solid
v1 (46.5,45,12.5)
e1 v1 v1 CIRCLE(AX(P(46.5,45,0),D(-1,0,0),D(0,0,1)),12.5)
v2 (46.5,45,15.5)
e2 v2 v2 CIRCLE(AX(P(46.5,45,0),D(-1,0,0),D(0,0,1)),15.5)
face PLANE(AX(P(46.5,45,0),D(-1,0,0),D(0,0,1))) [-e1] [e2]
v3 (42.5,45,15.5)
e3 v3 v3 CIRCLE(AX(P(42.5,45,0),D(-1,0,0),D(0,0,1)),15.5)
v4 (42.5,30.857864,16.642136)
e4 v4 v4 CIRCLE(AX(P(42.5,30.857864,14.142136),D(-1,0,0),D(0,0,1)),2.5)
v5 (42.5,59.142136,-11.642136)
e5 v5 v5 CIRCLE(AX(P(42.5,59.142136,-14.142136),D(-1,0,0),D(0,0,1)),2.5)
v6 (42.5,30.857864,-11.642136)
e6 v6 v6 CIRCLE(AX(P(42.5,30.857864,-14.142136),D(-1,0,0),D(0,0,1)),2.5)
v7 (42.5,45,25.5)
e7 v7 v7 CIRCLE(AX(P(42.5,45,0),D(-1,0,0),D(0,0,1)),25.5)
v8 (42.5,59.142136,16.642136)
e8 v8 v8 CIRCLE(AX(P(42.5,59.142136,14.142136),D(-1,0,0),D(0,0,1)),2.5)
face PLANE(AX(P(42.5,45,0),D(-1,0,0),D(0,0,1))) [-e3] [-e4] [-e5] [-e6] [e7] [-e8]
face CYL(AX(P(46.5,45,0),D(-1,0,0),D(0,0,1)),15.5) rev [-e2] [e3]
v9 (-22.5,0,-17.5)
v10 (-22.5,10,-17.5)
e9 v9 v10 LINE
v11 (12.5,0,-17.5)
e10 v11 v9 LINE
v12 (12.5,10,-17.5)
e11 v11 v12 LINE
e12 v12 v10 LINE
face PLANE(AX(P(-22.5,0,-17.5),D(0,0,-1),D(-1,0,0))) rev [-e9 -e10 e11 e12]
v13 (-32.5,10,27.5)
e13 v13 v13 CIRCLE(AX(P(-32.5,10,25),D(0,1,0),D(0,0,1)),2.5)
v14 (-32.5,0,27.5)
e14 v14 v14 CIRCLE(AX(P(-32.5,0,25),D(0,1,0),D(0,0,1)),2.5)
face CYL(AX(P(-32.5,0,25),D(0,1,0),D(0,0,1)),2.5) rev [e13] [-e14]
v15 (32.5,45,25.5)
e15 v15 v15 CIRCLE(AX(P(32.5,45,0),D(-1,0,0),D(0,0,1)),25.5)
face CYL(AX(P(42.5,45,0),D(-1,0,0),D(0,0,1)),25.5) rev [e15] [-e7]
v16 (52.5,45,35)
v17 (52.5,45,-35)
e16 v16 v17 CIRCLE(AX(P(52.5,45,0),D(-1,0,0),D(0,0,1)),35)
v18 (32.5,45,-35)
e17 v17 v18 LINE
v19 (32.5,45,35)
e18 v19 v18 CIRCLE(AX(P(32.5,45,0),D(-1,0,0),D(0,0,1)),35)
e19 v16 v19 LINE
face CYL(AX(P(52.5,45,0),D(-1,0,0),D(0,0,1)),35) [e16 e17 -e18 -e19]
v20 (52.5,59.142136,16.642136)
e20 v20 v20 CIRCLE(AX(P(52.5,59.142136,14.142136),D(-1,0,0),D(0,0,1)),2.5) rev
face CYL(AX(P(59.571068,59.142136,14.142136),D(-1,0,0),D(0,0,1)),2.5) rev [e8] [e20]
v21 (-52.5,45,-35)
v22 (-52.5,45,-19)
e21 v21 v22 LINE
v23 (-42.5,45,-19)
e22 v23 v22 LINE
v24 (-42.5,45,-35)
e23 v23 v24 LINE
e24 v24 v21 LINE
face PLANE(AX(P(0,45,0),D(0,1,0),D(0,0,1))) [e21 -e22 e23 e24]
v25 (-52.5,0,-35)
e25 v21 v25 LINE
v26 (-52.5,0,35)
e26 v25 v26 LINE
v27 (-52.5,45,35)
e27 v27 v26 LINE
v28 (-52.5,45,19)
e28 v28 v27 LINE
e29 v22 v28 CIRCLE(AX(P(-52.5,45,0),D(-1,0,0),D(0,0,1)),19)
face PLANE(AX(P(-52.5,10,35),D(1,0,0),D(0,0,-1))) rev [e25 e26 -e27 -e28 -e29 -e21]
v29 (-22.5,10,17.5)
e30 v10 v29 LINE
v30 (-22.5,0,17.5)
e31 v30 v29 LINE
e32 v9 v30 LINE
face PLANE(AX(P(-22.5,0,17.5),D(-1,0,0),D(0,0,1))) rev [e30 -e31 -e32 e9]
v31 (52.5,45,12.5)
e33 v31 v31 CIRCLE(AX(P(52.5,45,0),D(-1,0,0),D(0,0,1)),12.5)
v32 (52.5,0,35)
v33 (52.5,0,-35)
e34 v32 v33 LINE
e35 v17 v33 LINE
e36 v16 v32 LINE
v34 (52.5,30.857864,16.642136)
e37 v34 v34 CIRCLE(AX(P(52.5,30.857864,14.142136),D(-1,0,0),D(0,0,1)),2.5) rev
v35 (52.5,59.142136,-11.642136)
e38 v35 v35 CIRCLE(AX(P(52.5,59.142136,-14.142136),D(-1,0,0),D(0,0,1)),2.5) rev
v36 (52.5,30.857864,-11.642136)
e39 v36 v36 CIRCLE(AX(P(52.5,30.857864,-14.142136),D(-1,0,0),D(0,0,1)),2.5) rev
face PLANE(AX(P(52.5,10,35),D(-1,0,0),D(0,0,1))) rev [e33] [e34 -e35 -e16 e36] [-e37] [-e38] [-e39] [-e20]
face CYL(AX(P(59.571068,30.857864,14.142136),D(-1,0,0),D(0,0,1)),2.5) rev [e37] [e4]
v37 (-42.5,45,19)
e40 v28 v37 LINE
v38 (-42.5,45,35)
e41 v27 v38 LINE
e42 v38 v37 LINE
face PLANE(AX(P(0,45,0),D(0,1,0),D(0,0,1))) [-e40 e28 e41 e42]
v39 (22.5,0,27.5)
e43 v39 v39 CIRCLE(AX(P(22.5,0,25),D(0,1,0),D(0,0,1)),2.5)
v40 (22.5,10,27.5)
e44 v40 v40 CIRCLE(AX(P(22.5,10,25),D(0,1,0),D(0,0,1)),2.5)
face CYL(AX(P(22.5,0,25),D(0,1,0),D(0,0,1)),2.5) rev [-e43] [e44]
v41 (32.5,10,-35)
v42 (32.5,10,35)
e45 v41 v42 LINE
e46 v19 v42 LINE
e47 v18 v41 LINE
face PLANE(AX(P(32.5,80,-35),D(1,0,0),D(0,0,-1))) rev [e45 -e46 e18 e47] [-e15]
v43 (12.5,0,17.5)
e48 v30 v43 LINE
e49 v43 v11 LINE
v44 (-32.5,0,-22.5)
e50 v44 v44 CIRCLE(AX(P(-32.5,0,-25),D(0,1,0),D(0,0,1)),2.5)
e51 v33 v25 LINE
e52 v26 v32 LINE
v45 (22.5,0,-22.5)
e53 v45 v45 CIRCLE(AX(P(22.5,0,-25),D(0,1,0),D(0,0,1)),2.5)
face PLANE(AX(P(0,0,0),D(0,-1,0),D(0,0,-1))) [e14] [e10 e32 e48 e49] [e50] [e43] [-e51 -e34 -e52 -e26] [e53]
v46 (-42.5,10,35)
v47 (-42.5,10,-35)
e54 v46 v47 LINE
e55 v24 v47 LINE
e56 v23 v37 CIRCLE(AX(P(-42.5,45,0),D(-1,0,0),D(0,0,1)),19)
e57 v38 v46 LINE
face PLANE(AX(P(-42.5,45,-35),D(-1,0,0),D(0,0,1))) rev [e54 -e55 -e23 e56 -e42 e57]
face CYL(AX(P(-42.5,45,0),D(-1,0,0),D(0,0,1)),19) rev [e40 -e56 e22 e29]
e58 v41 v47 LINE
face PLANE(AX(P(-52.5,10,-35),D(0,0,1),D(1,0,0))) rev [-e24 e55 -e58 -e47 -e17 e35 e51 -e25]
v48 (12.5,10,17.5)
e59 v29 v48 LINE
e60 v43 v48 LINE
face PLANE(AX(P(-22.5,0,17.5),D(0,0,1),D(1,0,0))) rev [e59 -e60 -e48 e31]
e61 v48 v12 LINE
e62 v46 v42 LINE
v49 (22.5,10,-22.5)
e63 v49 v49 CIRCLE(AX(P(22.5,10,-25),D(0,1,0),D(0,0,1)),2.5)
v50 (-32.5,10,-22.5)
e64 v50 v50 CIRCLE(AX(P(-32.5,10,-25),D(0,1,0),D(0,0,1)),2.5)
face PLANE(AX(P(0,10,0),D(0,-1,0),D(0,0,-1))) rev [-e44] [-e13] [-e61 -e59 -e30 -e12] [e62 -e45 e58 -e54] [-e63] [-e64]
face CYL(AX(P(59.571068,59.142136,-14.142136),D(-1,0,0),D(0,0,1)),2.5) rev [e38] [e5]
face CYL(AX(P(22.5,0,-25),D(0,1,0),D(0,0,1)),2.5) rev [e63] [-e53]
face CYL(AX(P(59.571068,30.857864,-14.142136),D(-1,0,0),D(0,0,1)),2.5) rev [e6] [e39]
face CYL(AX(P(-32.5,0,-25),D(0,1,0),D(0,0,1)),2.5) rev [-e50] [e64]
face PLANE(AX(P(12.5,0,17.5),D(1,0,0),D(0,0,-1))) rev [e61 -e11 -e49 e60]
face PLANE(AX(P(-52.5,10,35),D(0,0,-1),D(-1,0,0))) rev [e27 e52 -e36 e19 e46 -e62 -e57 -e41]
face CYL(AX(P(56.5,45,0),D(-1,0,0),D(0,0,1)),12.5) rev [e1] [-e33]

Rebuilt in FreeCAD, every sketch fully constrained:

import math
import FreeCAD as App
import Part
import Sketcher
from FreeCAD import Vector


def add_polygon(sketch, points):
    """Adds a closed chain of lines whose ends are joined by coincident constraints."""
    first, n = sketch.GeometryCount, len(points)
    for a, b in zip(points, points[1:] + points[:1]):
        sketch.addGeometry(Part.LineSegment(App.Vector(*a, 0), App.Vector(*b, 0)), False)
    for i in range(n):
        sketch.addConstraint(Sketcher.Constraint("Coincident", first + i, 2, first + (i + 1) % n, 1))

doc = App.newDocument("Part")
body = doc.addObject("PartDesign::Body", "Body")

# Sketch on XZ plane
sketch1 = body.newObject("Sketcher::SketchObject", "Sketch")
sketch1.AttachmentSupport = (doc.getObject("XZ_Plane"), [""])
sketch1.MapMode = "FlatFace"
add_polygon(sketch1, [(-52, -35), (-52, 35), (52, 35), (52, -35)])  # lines 0-3
sketch1.addConstraint([
    Sketcher.Constraint("Vertical", 0),
    Sketcher.Constraint("Horizontal", 1),
    Sketcher.Constraint("Vertical", 2),
    Sketcher.Constraint("Horizontal", 3),
    Sketcher.Constraint("Symmetric", 0, 2, 2, 2, -1, 1),
    Sketcher.Constraint("DistanceX", 1, 1, 1, 2, 105.0),
    Sketcher.Constraint("DistanceY", 0, 1, 0, 2, 70.0),
])
pad1 = body.newObject("PartDesign::Pad", "Pad")
pad1.Profile = sketch1
pad1.Length = 10
pad1.Reversed = True

# Sketch on XZ plane
sketch2 = body.newObject("Sketcher::SketchObject", "Sketch001")
sketch2.AttachmentSupport = (doc.getObject("XZ_Plane"), [""])
sketch2.MapMode = "FlatFace"
sketch2.AttachmentOffset = App.Placement(Vector(0, 0, -10), App.Rotation())
add_polygon(sketch2, [(32, -35), (32, 35), (52, 35), (52, -35)])  # lines 0-3
sketch2.addConstraint([
    Sketcher.Constraint("Vertical", 0),
    Sketcher.Constraint("Horizontal", 1),
    Sketcher.Constraint("Vertical", 2),
    Sketcher.Constraint("Horizontal", 3),
    Sketcher.Constraint("DistanceX", 1, 1, 1, 2, 20.0),
    Sketcher.Constraint("DistanceY", 0, 1, 0, 2, 70.0),
    Sketcher.Constraint("DistanceY", -1, 1, 0, 2, 35.0),
    Sketcher.Constraint("DistanceX", -1, 1, 0, 2, 32.5),
])
pad2 = body.newObject("PartDesign::Pad", "Pad001")
pad2.Profile = sketch2
pad2.Length = 70
pad2.Reversed = True

# Sketch on YZ plane
sketch3 = body.newObject("Sketcher::SketchObject", "Sketch002")
sketch3.AttachmentSupport = (doc.getObject("YZ_Plane"), [""])
sketch3.MapMode = "FlatFace"
sketch3.AttachmentOffset = App.Placement(Vector(0, 0, 32.5), App.Rotation())
sketch3.addGeometry([
    Part.LineSegment(Vector(80, 0, 0), Vector(80, -35, 0)),  # 0
    Part.LineSegment(Vector(80, -35, 0), Vector(45, -35, 0)),  # 1
    Part.ArcOfCircle(Part.Circle(Vector(45, 0, 0), Vector(0, 0, 1), 35), math.radians(-90), math.radians(0)),  # 2
    Part.LineSegment(Vector(80, 35, 0), Vector(80, 0, 0)),  # 3
    Part.ArcOfCircle(Part.Circle(Vector(45, 0, 0), Vector(0, 0, 1), 35), math.radians(0), math.radians(90)),  # 4
    Part.LineSegment(Vector(45, 35, 0), Vector(80, 35, 0)),  # 5
], False)
sketch3.addConstraint([
    Sketcher.Constraint("Coincident", 0, 2, 1, 1),
    Sketcher.Constraint("Tangent", 1, 2, 2, 1),
    Sketcher.Constraint("Tangent", 2, 2, 0, 1),
    Sketcher.Constraint("Tangent", 3, 2, 4, 1),
    Sketcher.Constraint("Tangent", 4, 2, 5, 1),
    Sketcher.Constraint("Coincident", 5, 2, 3, 1),
    Sketcher.Constraint("Vertical", 0),
    Sketcher.Constraint("Horizontal", 1),
    Sketcher.Constraint("Vertical", 3),
    Sketcher.Constraint("Horizontal", 5),
    Sketcher.Constraint("Coincident", 4, 3, 2, 3),
    Sketcher.Constraint("Equal", 2, 4),
    Sketcher.Constraint("PointOnObject", 2, 3, -1),
    Sketcher.Constraint("Radius", 2, 35.0),
    Sketcher.Constraint("DistanceX", -1, 1, 2, 3, 45.0),
])
pocket1 = body.newObject("PartDesign::Pocket", "Pocket")
pocket1.Profile = sketch3
pocket1.Length = 20
pocket1.Reversed = True

# Sketch on YZ plane
sketch4 = body.newObject("Sketcher::SketchObject", "Sketch003")
sketch4.AttachmentSupport = (doc.getObject("YZ_Plane"), [""])
sketch4.MapMode = "FlatFace"
sketch4.AttachmentOffset = App.Placement(Vector(0, 0, 32.5), App.Rotation())
sketch4.addGeometry(Part.Circle(Vector(45, 0, 0), Vector(0, 0, 1), 26), False)
sketch4.addConstraint([
    Sketcher.Constraint("PointOnObject", 0, 3, -1),
    Sketcher.Constraint("Diameter", 0, 51.0),
    Sketcher.Constraint("DistanceX", -1, 1, 0, 3, 45.0),
])
pocket2 = body.newObject("PartDesign::Pocket", "Pocket001")
pocket2.Profile = sketch4
pocket2.Length = 10
pocket2.Reversed = True

# Sketch on YZ plane
sketch5 = body.newObject("Sketcher::SketchObject", "Sketch004")
sketch5.AttachmentSupport = (doc.getObject("YZ_Plane"), [""])
sketch5.MapMode = "FlatFace"
sketch5.AttachmentOffset = App.Placement(Vector(0, 0, 42.5), App.Rotation())
sketch5.addGeometry(Part.Circle(Vector(45, 0, 0), Vector(0, 0, 1), 16), False)
sketch5.addConstraint([
    Sketcher.Constraint("PointOnObject", 0, 3, -1),
    Sketcher.Constraint("Diameter", 0, 31.0),
    Sketcher.Constraint("DistanceX", -1, 1, 0, 3, 45.0),
])
pocket3 = body.newObject("PartDesign::Pocket", "Pocket002")
pocket3.Profile = sketch5
pocket3.Length = 4
pocket3.Reversed = True

# Sketch on YZ plane
sketch6 = body.newObject("Sketcher::SketchObject", "Sketch005")
sketch6.AttachmentSupport = (doc.getObject("YZ_Plane"), [""])
sketch6.MapMode = "FlatFace"
sketch6.AttachmentOffset = App.Placement(Vector(0, 0, 42.5), App.Rotation())
sketch6.addGeometry([
    Part.Circle(Vector(59.1, 14.1, 0), Vector(0, 0, 1), 2.5),
    Part.Circle(Vector(30.9, 14.1, 0), Vector(0, 0, 1), 2.5),
    Part.Circle(Vector(30.9, -14.1, 0), Vector(0, 0, 1), 2.5),
    Part.Circle(Vector(59.1, -14.1, 0), Vector(0, 0, 1), 2.5),
], False)
sketch6.addConstraint([
    Sketcher.Constraint("Equal", 0, 1),
    Sketcher.Constraint("Equal", 1, 2),
    Sketcher.Constraint("Equal", 2, 3),
    Sketcher.Constraint("Symmetric", 1, 3, 2, 3, -1),
    Sketcher.Constraint("Symmetric", 0, 3, 3, 3, -1),
    Sketcher.Constraint("Horizontal", 0, 3, 1, 3),
    Sketcher.Constraint("Diameter", 0, 5.0),
    Sketcher.Constraint("DistanceX", 1, 3, 0, 3, 28.284271),
    Sketcher.Constraint("DistanceY", 2, 3, 1, 3, 28.284271),
    Sketcher.Constraint("DistanceX", -1, 1, 0, 3, 59.142136),
])
pocket4 = body.newObject("PartDesign::Pocket", "Pocket003")
pocket4.Profile = sketch6
pocket4.Length = 10
pocket4.Reversed = True

# Sketch on XZ plane
sketch7 = body.newObject("Sketcher::SketchObject", "Sketch006")
sketch7.AttachmentSupport = (doc.getObject("XZ_Plane"), [""])
sketch7.MapMode = "FlatFace"
sketch7.AttachmentOffset = App.Placement(Vector(0, 0, -10), App.Rotation())
add_polygon(sketch7, [(-52, -35), (-52, 35), (-42, 35), (-42, -35)])  # lines 0-3
sketch7.addConstraint([
    Sketcher.Constraint("Vertical", 0),
    Sketcher.Constraint("Horizontal", 1),
    Sketcher.Constraint("Vertical", 2),
    Sketcher.Constraint("Horizontal", 3),
    Sketcher.Constraint("DistanceX", 1, 1, 1, 2, 10.0),
    Sketcher.Constraint("DistanceY", 0, 1, 0, 2, 70.0),
    Sketcher.Constraint("DistanceY", -1, 1, 0, 2, 35.0),
    Sketcher.Constraint("DistanceX", 0, 2, -1, 1, 52.5),
])
pad3 = body.newObject("PartDesign::Pad", "Pad002")
pad3.Profile = sketch7
pad3.Length = 35
pad3.Reversed = True

# Sketch on YZ plane
sketch8 = body.newObject("Sketcher::SketchObject", "Sketch007")
sketch8.AttachmentSupport = (doc.getObject("YZ_Plane"), [""])
sketch8.MapMode = "FlatFace"
sketch8.AttachmentOffset = App.Placement(Vector(0, 0, -52.5), App.Rotation())
sketch8.addGeometry(Part.Circle(Vector(45, 0, 0), Vector(0, 0, 1), 19), False)
sketch8.addConstraint([
    Sketcher.Constraint("PointOnObject", 0, 3, -1),
    Sketcher.Constraint("Diameter", 0, 38.0),
    Sketcher.Constraint("DistanceX", -1, 1, 0, 3, 45.0),
])
pocket5 = body.newObject("PartDesign::Pocket", "Pocket004")
pocket5.Profile = sketch8
pocket5.Length = 10
pocket5.Reversed = True

# Sketch on XZ plane
sketch9 = body.newObject("Sketcher::SketchObject", "Sketch008")
sketch9.AttachmentSupport = (doc.getObject("XZ_Plane"), [""])
sketch9.MapMode = "FlatFace"
sketch9.AttachmentOffset = App.Placement(Vector(0, 0, -10), App.Rotation())
sketch9.addGeometry([
    Part.Circle(Vector(-32.5, -25, 0), Vector(0, 0, 1), 2.5),
    Part.Circle(Vector(22.5, -25, 0), Vector(0, 0, 1), 2.5),
    Part.Circle(Vector(22.5, 25, 0), Vector(0, 0, 1), 2.5),
    Part.Circle(Vector(-32.5, 25, 0), Vector(0, 0, 1), 2.5),
], False)
sketch9.addConstraint([
    Sketcher.Constraint("Equal", 0, 1),
    Sketcher.Constraint("Equal", 1, 2),
    Sketcher.Constraint("Equal", 2, 3),
    Sketcher.Constraint("Symmetric", 1, 3, 2, 3, -1),
    Sketcher.Constraint("Symmetric", 0, 3, 3, 3, -1),
    Sketcher.Constraint("Horizontal", 0, 3, 1, 3),
    Sketcher.Constraint("Diameter", 0, 5.0),
    Sketcher.Constraint("DistanceY", 0, 3, -1, 1, 25.0),
    Sketcher.Constraint("DistanceX", 0, 3, 1, 3, 55.0),
    Sketcher.Constraint("DistanceX", 0, 3, -1, 1, 32.5),
])
pocket6 = body.newObject("PartDesign::Pocket", "Pocket005")
pocket6.Profile = sketch9
pocket6.Length = 10
pocket6.Reversed = True

# Sketch on YZ plane
sketch10 = body.newObject("Sketcher::SketchObject", "Sketch009")
sketch10.AttachmentSupport = (doc.getObject("YZ_Plane"), [""])
sketch10.MapMode = "FlatFace"
sketch10.AttachmentOffset = App.Placement(Vector(0, 0, 46.5), App.Rotation())
sketch10.addGeometry(Part.Circle(Vector(45, 0, 0), Vector(0, 0, 1), 12), False)
sketch10.addConstraint([
    Sketcher.Constraint("PointOnObject", 0, 3, -1),
    Sketcher.Constraint("Diameter", 0, 25.0),
    Sketcher.Constraint("DistanceX", -1, 1, 0, 3, 45.0),
])
pocket7 = body.newObject("PartDesign::Pocket", "Pocket006")
pocket7.Profile = sketch10
pocket7.Length = 10
pocket7.Reversed = True

# Sketch on XZ plane
sketch11 = body.newObject("Sketcher::SketchObject", "Sketch010")
sketch11.AttachmentSupport = (doc.getObject("XZ_Plane"), [""])
sketch11.MapMode = "FlatFace"
sketch11.AttachmentOffset = App.Placement(Vector(0, 0, -10), App.Rotation())
add_polygon(sketch11, [(-22, -18), (-22, 18), (12, 18), (12, -18)])  # lines 0-3
sketch11.addConstraint([
    Sketcher.Constraint("Vertical", 0),
    Sketcher.Constraint("Horizontal", 1),
    Sketcher.Constraint("Vertical", 2),
    Sketcher.Constraint("Horizontal", 3),
    Sketcher.Constraint("Equal", 3, 0),
    Sketcher.Constraint("DistanceX", 1, 1, 1, 2, 35.0),
    Sketcher.Constraint("DistanceX", 0, 2, -1, 1, 22.5),
    Sketcher.Constraint("DistanceY", -1, 1, 0, 2, 17.5),
])
pocket8 = body.newObject("PartDesign::Pocket", "Pocket007")
pocket8.Profile = sketch11
pocket8.Length = 10
pocket8.Reversed = True

doc.recompute()
